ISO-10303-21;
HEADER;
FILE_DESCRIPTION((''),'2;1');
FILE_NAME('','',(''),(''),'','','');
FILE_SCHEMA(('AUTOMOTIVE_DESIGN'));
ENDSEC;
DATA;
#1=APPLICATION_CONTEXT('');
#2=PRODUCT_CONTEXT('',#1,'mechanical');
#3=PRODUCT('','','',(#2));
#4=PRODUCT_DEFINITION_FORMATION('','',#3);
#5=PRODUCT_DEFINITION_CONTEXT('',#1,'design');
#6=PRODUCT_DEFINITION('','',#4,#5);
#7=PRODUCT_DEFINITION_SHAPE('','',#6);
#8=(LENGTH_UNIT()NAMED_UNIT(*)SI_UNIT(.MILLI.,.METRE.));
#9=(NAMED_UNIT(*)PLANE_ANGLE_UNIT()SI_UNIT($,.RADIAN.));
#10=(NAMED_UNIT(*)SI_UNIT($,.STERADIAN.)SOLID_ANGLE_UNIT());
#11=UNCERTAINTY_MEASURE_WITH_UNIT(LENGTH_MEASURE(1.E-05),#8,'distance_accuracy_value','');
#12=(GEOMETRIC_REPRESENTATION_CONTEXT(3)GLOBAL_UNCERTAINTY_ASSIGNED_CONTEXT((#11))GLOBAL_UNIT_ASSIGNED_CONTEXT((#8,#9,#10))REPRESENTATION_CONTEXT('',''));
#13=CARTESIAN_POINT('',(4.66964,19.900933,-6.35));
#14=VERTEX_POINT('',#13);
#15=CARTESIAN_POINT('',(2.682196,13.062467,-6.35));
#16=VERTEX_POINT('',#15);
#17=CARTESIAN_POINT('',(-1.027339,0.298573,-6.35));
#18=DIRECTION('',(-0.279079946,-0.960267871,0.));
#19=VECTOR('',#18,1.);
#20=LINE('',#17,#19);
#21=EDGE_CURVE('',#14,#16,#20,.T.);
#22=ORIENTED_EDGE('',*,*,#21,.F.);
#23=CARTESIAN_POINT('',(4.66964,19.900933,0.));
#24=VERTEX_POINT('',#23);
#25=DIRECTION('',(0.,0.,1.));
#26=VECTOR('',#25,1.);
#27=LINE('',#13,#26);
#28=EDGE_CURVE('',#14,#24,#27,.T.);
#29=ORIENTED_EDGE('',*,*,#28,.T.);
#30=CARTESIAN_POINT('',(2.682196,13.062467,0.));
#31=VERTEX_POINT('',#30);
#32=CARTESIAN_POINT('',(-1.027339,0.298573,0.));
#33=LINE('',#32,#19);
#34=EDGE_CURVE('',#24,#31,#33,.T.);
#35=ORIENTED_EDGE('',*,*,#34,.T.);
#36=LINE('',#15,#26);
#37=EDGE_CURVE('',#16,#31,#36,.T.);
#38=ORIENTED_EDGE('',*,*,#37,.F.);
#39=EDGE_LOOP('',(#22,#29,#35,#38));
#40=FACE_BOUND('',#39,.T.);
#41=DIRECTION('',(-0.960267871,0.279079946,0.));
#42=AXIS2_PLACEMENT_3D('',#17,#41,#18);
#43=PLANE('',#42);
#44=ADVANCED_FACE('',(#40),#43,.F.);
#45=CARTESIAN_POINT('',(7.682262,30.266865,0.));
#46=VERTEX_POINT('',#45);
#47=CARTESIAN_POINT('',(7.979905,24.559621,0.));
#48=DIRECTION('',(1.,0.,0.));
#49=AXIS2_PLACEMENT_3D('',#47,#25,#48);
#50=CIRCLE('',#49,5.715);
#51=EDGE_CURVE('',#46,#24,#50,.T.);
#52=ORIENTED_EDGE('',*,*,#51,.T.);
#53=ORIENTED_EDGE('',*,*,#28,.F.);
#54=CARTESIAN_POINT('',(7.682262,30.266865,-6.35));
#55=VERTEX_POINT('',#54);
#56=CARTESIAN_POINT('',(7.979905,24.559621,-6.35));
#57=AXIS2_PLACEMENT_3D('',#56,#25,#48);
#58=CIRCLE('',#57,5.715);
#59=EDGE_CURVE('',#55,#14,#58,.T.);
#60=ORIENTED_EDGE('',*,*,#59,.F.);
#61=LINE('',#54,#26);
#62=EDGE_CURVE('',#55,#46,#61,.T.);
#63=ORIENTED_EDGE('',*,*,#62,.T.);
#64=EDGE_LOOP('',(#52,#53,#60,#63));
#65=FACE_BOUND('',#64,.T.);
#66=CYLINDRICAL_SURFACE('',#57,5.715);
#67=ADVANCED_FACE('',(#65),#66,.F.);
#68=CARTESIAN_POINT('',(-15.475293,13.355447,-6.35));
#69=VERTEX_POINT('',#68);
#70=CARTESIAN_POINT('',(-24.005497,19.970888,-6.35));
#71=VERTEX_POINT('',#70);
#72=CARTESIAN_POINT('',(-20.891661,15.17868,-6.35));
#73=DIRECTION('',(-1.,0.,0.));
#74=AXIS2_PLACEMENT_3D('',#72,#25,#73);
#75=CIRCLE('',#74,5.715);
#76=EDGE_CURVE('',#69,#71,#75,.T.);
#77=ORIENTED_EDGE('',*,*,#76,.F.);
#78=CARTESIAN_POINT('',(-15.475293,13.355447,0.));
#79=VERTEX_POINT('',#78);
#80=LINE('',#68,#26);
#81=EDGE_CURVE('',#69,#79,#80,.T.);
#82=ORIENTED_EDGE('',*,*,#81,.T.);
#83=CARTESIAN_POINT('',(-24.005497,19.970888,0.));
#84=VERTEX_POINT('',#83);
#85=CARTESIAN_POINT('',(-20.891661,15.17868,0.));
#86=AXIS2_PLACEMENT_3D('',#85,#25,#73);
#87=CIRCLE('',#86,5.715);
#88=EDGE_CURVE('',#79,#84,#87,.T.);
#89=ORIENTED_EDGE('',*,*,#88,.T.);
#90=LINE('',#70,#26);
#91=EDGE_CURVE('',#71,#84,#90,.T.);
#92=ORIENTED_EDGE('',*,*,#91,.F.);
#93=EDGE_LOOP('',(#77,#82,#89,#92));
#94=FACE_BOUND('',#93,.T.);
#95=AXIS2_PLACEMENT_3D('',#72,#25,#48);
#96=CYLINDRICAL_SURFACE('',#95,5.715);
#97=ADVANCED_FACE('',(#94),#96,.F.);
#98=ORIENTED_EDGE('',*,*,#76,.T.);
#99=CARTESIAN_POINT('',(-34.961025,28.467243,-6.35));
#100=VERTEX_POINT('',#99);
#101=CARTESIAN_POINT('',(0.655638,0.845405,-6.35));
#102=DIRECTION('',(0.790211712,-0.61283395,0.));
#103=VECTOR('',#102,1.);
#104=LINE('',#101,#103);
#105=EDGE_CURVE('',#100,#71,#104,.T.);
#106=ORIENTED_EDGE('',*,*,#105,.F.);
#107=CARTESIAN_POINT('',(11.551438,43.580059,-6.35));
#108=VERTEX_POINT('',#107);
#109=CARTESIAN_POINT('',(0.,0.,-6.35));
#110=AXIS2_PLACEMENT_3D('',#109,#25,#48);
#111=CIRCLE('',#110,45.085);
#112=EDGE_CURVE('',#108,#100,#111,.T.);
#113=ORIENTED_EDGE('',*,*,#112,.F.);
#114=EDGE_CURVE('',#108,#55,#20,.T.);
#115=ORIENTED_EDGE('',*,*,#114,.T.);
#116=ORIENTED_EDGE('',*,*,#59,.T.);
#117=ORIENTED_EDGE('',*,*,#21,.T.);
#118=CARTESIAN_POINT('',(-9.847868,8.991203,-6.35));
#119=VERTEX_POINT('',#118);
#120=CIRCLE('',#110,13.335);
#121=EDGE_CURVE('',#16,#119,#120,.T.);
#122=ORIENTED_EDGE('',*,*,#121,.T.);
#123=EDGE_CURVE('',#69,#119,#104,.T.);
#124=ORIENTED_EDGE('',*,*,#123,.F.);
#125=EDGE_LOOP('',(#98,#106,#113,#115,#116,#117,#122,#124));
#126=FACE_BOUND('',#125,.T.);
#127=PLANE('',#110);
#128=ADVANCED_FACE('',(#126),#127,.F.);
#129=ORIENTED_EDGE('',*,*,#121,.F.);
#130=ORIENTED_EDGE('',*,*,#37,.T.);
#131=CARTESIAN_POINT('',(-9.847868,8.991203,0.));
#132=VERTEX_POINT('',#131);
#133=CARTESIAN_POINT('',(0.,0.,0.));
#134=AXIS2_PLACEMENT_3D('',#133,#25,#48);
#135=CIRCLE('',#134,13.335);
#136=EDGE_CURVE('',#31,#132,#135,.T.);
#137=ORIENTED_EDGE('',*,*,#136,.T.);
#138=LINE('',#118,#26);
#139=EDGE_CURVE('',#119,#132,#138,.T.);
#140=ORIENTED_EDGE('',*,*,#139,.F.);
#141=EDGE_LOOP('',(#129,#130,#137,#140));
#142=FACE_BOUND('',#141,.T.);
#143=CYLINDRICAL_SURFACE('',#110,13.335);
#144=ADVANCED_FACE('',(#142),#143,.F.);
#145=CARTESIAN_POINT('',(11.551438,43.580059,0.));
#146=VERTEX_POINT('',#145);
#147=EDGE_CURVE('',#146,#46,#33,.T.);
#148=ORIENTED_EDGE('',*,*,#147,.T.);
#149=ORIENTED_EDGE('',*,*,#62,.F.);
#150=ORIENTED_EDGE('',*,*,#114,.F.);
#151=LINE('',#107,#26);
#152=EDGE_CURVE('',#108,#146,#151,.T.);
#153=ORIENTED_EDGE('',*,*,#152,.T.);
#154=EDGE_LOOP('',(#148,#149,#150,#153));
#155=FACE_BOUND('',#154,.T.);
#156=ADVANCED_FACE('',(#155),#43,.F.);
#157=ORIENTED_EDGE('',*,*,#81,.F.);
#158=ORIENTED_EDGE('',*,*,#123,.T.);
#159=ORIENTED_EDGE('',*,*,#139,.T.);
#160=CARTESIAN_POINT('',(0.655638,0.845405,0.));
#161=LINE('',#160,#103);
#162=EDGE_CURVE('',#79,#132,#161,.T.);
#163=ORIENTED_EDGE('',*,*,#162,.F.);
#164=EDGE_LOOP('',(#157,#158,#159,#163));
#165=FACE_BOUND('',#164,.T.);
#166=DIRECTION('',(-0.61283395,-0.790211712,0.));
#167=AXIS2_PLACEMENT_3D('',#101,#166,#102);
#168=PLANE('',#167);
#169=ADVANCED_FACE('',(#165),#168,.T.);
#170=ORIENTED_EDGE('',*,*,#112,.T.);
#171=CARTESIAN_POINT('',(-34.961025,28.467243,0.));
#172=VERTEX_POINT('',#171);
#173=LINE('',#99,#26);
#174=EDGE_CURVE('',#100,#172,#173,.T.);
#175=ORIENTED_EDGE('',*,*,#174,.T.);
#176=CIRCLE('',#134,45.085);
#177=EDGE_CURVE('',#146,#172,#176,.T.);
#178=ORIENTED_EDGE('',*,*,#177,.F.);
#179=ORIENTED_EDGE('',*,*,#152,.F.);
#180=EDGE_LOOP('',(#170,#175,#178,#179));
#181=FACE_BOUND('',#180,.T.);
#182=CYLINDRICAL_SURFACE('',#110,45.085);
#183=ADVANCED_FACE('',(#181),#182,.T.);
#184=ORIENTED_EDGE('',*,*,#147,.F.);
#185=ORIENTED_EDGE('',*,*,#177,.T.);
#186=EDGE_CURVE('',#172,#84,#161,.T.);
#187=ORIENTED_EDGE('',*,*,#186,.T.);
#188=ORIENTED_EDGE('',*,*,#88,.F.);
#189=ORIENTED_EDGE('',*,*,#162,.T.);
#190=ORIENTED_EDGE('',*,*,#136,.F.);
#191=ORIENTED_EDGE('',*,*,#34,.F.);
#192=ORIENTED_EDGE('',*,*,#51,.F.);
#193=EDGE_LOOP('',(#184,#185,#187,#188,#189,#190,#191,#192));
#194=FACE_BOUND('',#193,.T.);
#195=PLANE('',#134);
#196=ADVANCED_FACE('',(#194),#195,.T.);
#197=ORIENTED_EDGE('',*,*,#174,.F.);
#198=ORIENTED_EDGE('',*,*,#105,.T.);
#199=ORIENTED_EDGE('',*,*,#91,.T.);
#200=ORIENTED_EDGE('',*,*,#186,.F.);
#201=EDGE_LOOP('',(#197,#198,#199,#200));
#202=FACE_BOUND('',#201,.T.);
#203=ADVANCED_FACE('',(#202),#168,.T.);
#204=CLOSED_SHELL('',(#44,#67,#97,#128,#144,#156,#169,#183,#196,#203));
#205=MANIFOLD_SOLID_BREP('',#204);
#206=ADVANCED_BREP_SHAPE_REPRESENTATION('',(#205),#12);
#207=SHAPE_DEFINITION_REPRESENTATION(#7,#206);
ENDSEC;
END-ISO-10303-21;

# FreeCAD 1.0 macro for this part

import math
import FreeCAD as App
import Part
import Sketcher

V = App.Vector
Q = App.Units.Quantity

doc = App.newDocument("Part")
body = doc.addObject("PartDesign::Body", "Body")

# Sketch on XY plane
sketch1 = doc.addObject("Sketcher::SketchObject", "Sketch")
body.addObject(sketch1)
sketch1.AttachmentSupport = (doc.XY_Plane, [""])
sketch1.MapMode = "FlatFace"
sketch1.addGeometry(Part.LineSegment(V(3, 13, 0), V(12, 44, 0)), False)
sketch1.addGeometry(Part.ArcOfCircle(Part.Circle(V(0, 0, 0), V(0, 0, 1), 45), math.radians(75), math.radians(141)), False)
sketch1.addGeometry(Part.LineSegment(V(-35, 28, 0), V(-10, 9, 0)), False)
sketch1.addGeometry(Part.ArcOfCircle(Part.Circle(V(0, 0, 0), V(0, 0, 1), 13), math.radians(78), math.radians(138)), False)
sketch1.addConstraint(Sketcher.Constraint("Coincident", 0, 2, 1, 1))
sketch1.addConstraint(Sketcher.Constraint("Coincident", 1, 2, 2, 1))
sketch1.addConstraint(Sketcher.Constraint("Coincident", 2, 2, 3, 2))
sketch1.addConstraint(Sketcher.Constraint("Coincident", 3, 1, 0, 1))
sketch1.addConstraint(Sketcher.Constraint("Coincident", 1, 3, -1, 1))
sketch1.addConstraint(Sketcher.Constraint("Coincident", 3, 3, -1, 1))
sketch1.addConstraint(Sketcher.Constraint("Equal", 0, 2))
sketch1.addConstraint(Sketcher.Constraint("Radius", 1, Q("1.775 in")))
sketch1.addConstraint(Sketcher.Constraint("Radius", 3, Q("0.525 in")))
sketch1.addConstraint(Sketcher.Constraint("Distance", 0, 31.78029))
sketch1.addConstraint(Sketcher.Constraint("DistanceY", -1, 1, 0, 2, 43.580059))
sketch1.addConstraint(Sketcher.Constraint("DistanceY", 2, 2, 1, 2, 19.476041))
pad1 = doc.addObject("PartDesign::Pad", "Pad")
body.addObject(pad1)
pad1.Profile = sketch1
pad1.Length = Q("0.25 in")
pad1.Reversed = True

# Sketch on XY plane
sketch2 = doc.addObject("Sketcher::SketchObject", "Sketch001")
body.addObject(sketch2)
sketch2.AttachmentSupport = (doc.XY_Plane, [""])
sketch2.MapMode = "FlatFace"
sketch2.addGeometry(Part.LineSegment(V(5, 20, 0), V(8, 30, 0)), False)
sketch2.addGeometry(Part.ArcOfCircle(Part.Circle(V(8, 25, 0), V(0, 0, 1), 6), math.radians(93), math.radians(235)), False)
sketch2.addGeometry(Part.LineSegment(V(-24, 20, 0), V(-15, 13, 0)), False)
sketch2.addGeometry(Part.ArcOfCircle(Part.Circle(V(-21, 15, 0), V(0, 0, 1), 6), math.radians(-19), math.radians(123)), False)
sketch2.addConstraint(Sketcher.Constraint("Coincident", 0, 1, 1, 2))
sketch2.addConstraint(Sketcher.Constraint("Coincident", 1, 1, 0, 2))
sketch2.addConstraint(Sketcher.Constraint("Coincident", 2, 1, 3, 2))
sketch2.addConstraint(Sketcher.Constraint("Coincident", 3, 1, 2, 2))
sketch2.addConstraint(Sketcher.Constraint("Equal", 1, 3))
sketch2.addConstraint(Sketcher.Constraint("Equal", 0, 2))
sketch2.addConstraint(Sketcher.Constraint("Radius", 1, Q("0.225 in")))
sketch2.addConstraint(Sketcher.Constraint("DistanceX", 3, 3, 0, 1, 25.561301))
sketch2.addConstraint(Sketcher.Constraint("DistanceX", 2, 1, 1, 3, 31.985401))
sketch2.addConstraint(Sketcher.Constraint("DistanceY", -1, 1, 1, 3, 24.559621))
sketch2.addConstraint(Sketcher.Constraint("DistanceX", 3, 3, -1, 1, 20.891661))
sketch2.addConstraint(Sketcher.Constraint("DistanceY", -1, 1, 3, 3, 15.17868))
sketch2.addConstraint(Sketcher.Constraint("DistanceX", -1, 1, 1, 1, 7.682262))
sketch2.addConstraint(Sketcher.Constraint("DistanceY", 0, 1, 1, 3, 4.658688))
pocket1 = doc.addObject("PartDesign::Pocket", "Pocket")
body.addObject(pocket1)
pocket1.Profile = sketch2
pocket1.Type = "ThroughAll"

doc.recompute()
